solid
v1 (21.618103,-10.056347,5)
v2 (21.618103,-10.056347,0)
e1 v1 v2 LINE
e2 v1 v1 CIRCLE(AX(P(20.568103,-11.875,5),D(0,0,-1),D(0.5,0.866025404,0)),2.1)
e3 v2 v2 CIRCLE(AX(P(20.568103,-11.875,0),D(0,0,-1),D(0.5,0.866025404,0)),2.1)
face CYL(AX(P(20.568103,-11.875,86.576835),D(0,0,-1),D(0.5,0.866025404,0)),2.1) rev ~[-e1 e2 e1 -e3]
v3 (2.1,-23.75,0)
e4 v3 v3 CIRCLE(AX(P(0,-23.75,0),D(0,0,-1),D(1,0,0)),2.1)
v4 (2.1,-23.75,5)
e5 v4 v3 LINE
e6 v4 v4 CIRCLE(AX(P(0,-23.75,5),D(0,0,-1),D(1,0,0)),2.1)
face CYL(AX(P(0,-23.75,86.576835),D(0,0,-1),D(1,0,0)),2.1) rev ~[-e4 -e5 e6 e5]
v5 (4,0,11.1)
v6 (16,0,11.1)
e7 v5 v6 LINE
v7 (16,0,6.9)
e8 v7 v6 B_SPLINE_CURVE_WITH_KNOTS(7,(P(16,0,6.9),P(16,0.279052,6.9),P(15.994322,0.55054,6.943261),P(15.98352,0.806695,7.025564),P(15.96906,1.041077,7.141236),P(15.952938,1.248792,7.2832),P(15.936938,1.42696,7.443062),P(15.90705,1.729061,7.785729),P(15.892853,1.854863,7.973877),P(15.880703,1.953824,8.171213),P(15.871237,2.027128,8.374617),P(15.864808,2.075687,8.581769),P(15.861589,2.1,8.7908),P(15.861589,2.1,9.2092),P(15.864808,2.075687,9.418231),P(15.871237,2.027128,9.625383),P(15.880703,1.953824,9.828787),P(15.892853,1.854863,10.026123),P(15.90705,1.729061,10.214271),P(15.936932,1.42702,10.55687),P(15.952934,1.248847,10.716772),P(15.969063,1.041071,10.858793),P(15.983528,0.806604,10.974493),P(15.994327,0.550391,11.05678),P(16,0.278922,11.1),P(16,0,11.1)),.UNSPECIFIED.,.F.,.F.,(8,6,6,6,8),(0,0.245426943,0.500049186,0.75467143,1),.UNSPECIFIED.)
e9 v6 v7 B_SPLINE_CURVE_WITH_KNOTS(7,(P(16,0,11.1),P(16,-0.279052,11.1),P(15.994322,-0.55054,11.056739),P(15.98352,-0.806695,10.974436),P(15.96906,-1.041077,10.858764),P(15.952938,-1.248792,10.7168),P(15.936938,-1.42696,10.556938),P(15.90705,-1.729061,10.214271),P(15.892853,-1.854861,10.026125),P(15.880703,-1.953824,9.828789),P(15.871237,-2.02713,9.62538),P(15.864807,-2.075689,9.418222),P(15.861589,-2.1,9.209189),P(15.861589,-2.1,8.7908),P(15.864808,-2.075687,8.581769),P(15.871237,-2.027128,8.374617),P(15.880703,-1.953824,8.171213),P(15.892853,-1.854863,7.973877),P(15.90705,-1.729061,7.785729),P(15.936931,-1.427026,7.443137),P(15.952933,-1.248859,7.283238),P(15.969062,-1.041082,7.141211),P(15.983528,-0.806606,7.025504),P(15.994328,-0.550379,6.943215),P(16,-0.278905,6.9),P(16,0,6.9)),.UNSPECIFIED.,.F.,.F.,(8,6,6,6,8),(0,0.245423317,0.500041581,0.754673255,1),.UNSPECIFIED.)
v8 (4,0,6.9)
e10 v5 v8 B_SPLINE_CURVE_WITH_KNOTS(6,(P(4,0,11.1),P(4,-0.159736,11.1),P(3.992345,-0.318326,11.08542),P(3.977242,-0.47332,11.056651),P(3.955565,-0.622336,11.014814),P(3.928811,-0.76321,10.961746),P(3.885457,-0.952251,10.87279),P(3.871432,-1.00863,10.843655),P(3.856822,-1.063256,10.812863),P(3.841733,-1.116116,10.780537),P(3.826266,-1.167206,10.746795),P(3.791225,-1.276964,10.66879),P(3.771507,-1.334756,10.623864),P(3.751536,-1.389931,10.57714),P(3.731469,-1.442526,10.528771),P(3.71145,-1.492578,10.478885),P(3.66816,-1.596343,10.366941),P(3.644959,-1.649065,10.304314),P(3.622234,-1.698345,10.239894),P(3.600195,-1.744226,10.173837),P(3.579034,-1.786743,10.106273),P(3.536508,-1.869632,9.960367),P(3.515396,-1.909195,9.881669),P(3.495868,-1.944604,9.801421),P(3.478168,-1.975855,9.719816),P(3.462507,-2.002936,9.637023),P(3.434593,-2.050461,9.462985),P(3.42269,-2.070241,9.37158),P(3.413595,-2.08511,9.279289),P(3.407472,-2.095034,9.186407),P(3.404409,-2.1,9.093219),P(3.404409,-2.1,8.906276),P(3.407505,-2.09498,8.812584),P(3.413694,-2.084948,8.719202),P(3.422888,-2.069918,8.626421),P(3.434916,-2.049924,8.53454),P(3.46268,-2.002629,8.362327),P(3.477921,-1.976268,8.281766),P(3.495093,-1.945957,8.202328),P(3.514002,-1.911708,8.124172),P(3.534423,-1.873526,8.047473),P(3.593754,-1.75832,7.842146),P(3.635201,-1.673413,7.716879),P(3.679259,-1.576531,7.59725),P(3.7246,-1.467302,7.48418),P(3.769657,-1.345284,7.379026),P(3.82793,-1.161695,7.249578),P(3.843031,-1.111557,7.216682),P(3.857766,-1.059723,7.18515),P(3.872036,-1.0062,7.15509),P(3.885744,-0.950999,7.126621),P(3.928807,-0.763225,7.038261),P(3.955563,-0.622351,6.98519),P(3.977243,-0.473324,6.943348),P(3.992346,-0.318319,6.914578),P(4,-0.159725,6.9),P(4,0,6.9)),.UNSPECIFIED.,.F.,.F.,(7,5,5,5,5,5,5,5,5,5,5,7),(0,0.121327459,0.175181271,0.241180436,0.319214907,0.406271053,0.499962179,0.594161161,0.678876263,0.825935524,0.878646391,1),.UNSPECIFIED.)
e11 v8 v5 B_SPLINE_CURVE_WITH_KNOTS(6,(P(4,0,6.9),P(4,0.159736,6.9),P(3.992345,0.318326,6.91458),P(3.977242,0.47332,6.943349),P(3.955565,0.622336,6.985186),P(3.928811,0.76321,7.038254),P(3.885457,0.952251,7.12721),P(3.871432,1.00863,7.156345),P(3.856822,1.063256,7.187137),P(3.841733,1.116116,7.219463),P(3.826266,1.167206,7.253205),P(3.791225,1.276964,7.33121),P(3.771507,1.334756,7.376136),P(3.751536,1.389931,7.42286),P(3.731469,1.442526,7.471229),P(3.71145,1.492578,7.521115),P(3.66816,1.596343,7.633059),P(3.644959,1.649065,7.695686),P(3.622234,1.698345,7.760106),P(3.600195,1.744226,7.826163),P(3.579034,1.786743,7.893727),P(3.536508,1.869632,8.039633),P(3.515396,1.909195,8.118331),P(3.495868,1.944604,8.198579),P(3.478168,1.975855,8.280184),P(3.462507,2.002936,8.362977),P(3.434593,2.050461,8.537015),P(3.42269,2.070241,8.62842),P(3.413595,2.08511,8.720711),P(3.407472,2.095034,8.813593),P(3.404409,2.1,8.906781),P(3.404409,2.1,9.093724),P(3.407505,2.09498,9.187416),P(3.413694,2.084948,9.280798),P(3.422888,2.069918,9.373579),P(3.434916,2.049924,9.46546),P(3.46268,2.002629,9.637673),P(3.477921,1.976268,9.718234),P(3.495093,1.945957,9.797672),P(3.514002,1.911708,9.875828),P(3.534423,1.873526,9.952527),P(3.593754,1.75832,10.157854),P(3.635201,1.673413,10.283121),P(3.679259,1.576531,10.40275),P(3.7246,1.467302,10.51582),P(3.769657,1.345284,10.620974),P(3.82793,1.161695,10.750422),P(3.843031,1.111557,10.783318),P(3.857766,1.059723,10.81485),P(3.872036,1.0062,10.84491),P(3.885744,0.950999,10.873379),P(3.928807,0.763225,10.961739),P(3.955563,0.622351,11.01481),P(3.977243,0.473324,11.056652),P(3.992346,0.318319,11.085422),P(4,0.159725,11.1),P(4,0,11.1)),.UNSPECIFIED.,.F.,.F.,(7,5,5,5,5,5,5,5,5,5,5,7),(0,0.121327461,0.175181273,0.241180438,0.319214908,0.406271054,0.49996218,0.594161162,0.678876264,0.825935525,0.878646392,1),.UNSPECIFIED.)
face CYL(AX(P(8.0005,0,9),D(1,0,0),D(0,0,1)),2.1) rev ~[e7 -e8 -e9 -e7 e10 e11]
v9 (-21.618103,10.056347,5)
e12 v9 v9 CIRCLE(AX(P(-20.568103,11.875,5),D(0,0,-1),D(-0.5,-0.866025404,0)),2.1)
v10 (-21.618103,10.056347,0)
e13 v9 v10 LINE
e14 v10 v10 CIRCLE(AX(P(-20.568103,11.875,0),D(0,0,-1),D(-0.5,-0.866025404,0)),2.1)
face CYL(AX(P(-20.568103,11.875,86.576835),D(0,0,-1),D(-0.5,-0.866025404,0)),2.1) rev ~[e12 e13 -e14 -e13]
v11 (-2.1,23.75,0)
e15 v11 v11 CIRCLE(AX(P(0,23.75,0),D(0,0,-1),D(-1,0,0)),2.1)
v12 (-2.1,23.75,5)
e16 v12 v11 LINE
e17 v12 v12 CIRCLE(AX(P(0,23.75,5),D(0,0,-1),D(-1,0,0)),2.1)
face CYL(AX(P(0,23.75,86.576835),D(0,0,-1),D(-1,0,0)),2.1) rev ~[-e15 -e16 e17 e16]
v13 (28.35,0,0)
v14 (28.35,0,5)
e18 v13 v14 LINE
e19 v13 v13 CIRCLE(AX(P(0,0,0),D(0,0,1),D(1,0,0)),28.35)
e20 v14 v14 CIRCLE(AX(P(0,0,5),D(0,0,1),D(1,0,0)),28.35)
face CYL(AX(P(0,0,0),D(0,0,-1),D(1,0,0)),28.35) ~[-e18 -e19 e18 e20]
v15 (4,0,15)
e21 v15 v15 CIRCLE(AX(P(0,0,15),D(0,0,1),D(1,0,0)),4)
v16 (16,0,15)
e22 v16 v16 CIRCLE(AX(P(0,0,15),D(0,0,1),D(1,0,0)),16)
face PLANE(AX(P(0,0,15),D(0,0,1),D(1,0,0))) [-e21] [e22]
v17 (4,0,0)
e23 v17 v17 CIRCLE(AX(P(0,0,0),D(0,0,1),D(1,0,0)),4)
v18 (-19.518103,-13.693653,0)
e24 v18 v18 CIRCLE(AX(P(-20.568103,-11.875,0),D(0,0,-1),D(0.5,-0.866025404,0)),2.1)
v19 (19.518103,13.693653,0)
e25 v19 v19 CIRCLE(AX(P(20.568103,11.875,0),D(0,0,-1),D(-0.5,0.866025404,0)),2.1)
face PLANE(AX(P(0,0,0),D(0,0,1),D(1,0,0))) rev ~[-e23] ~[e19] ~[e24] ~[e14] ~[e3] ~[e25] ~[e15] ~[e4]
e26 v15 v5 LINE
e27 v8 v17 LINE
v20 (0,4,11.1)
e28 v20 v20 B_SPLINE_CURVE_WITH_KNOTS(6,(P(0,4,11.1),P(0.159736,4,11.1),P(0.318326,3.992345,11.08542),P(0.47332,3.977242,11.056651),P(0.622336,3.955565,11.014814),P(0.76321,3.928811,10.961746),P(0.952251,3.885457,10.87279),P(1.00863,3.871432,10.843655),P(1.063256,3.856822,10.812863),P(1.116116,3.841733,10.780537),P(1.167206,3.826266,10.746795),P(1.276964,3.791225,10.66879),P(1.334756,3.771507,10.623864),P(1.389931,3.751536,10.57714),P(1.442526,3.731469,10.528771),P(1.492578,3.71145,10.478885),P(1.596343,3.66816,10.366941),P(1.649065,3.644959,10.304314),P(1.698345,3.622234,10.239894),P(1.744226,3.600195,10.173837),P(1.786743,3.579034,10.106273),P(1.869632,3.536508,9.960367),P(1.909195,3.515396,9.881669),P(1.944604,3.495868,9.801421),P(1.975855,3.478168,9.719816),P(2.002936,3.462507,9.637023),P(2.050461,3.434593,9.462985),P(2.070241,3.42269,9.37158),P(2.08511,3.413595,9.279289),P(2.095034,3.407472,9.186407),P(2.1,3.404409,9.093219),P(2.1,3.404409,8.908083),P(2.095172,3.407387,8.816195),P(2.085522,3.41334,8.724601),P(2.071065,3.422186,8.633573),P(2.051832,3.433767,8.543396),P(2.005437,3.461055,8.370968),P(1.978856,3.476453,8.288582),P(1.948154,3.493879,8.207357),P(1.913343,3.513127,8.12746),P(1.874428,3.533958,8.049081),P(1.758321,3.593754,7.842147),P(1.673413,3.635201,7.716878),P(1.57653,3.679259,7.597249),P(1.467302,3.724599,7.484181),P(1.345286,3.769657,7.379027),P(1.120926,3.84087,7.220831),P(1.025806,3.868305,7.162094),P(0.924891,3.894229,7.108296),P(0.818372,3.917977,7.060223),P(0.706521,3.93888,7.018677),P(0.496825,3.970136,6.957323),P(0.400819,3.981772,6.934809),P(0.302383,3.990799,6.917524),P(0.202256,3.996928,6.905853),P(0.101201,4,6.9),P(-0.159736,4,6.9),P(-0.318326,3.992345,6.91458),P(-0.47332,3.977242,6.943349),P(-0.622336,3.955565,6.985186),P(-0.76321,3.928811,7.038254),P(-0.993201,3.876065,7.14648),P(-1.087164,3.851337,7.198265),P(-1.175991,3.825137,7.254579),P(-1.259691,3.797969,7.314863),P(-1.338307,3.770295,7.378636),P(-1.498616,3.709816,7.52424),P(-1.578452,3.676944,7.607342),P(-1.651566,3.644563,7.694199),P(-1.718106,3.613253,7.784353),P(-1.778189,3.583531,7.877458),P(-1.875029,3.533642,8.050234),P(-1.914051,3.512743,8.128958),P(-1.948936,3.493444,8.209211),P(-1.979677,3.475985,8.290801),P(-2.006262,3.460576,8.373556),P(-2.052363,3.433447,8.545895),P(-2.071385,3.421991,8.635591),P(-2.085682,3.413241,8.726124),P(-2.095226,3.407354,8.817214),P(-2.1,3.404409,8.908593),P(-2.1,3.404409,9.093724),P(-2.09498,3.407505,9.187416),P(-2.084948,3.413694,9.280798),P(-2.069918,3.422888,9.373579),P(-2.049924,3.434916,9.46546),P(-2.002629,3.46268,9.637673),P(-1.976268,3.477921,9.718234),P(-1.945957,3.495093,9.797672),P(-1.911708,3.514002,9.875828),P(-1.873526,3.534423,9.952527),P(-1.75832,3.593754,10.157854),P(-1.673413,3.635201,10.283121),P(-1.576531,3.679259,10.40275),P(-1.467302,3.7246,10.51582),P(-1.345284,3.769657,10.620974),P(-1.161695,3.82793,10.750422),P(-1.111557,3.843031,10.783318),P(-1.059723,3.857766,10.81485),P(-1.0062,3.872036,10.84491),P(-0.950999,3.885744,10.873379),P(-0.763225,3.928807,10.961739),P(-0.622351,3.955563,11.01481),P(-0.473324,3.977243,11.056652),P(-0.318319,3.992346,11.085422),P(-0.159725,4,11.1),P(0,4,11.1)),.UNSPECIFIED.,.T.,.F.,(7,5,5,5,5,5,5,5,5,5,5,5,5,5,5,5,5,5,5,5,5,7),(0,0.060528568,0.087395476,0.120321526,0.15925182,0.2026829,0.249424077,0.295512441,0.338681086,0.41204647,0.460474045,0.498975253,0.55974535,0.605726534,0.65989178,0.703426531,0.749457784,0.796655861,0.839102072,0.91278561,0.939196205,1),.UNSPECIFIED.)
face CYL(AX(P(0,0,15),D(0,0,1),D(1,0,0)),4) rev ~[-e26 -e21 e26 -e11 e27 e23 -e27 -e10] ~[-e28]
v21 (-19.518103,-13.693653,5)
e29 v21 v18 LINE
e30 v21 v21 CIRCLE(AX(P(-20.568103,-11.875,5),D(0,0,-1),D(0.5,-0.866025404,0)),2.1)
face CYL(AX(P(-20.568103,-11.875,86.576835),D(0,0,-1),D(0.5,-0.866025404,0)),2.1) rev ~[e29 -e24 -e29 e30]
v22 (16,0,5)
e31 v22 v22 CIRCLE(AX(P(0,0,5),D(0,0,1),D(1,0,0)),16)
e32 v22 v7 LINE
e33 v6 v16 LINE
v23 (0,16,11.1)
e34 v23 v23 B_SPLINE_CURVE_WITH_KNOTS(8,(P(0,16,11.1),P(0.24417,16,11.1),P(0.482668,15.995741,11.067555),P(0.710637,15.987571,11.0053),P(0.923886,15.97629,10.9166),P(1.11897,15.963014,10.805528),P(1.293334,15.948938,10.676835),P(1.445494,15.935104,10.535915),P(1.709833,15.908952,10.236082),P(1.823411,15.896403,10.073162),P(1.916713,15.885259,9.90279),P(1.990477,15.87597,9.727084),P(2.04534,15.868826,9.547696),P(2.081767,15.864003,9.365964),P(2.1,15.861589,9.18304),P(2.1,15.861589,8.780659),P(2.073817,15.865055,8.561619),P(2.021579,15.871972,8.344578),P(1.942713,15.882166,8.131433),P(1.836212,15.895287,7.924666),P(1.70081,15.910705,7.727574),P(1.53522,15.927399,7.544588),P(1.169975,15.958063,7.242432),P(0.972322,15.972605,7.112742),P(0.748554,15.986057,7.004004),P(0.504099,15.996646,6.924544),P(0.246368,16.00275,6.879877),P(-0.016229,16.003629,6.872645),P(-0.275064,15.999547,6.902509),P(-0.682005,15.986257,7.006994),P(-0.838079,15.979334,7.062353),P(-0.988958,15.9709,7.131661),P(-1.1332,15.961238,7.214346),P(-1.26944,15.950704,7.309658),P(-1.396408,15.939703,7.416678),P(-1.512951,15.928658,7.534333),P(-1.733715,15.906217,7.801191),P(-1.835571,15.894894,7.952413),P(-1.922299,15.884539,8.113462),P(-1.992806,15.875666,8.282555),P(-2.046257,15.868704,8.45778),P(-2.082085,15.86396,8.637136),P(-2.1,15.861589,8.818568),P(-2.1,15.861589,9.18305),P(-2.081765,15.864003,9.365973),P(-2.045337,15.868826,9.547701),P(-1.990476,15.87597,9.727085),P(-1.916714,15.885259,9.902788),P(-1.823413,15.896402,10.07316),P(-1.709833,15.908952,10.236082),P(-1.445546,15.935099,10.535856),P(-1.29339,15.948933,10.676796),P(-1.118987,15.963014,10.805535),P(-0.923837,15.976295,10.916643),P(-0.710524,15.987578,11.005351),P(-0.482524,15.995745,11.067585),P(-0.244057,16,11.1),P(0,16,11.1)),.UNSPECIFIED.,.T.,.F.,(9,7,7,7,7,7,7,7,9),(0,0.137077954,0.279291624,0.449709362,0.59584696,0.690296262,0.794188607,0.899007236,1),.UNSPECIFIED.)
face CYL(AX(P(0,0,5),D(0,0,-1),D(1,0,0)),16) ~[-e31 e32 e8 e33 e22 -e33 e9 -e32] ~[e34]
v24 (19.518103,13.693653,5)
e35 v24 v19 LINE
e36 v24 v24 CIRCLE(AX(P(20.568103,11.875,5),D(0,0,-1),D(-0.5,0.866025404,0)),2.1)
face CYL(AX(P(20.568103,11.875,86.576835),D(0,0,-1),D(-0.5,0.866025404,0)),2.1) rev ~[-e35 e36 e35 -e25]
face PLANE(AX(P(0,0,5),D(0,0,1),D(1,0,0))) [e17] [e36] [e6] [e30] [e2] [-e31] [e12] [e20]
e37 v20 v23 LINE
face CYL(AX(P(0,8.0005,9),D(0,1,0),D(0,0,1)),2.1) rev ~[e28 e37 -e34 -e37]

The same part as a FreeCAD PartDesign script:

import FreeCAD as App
import Part
import Sketcher

V = App.Vector
Q = App.Units.Quantity


def add_polygon(sketch, points):
    """Adds a closed chain of lines whose ends are joined by coincident constraints."""
    first, n = sketch.GeometryCount, len(points)
    for a, b in zip(points, points[1:] + points[:1]):
        sketch.addGeometry(Part.LineSegment(App.Vector(*a, 0), App.Vector(*b, 0)), False)
    for i in range(n):
        sketch.addConstraint(Sketcher.Constraint("Coincident", first + i, 2, first + (i + 1) % n, 1))

doc = App.newDocument("Part")
body = doc.addObject("PartDesign::Body", "Body")

# Sketch on XY plane
sketch1 = body.newObject("Sketcher::SketchObject", "Sketch")
sketch1.AttachmentSupport = (doc.getObject("XY_Plane"), [""])
sketch1.MapMode = "FlatFace"
sketch1.addGeometry(Part.Circle(V(0, 0, 0), V(0, 0, 1), 28.35), False)
sketch1.addConstraint([
    Sketcher.Constraint("Coincident", 0, 3, -1, 1),
    Sketcher.Constraint("Diameter", 0, Q("56.7 mm")),
])
pad1 = body.newObject("PartDesign::Pad", "Pad")
pad1.Profile = sketch1
pad1.Length = 5

# Sketch on XY plane
sketch2 = body.newObject("Sketcher::SketchObject", "Sketch001")
sketch2.AttachmentSupport = (doc.getObject("XY_Plane"), [""])
sketch2.MapMode = "FlatFace"
sketch2.AttachmentOffset = App.Placement(V(0, 0, 5), App.Rotation())
sketch2.addGeometry(Part.Circle(V(0, 0, 0), V(0, 0, 1), 16), False)
sketch2.addConstraint([
    Sketcher.Constraint("Coincident", 0, 3, -1, 1),
    Sketcher.Constraint("Diameter", 0, Q("32 mm")),
])
pad2 = body.newObject("PartDesign::Pad", "Pad001")
pad2.Profile = sketch2
pad2.Length = 10

# Sketch on XY plane
sketch3 = body.newObject("Sketcher::SketchObject", "Sketch002")
sketch3.AttachmentSupport = (doc.getObject("XY_Plane"), [""])
sketch3.MapMode = "FlatFace"
sketch3.AttachmentOffset = App.Placement(V(0, 0, 15), App.Rotation())
sketch3.addGeometry(Part.Circle(V(0, 0, 0), V(0, 0, 1), 4), False)
sketch3.addConstraint([
    Sketcher.Constraint("Coincident", 0, 3, -1, 1),
    Sketcher.Constraint("Diameter", 0, Q("8 mm")),
])
pocket1 = body.newObject("PartDesign::Pocket", "Pocket")
pocket1.Profile = sketch3
pocket1.Type = "ThroughAll"

# Sketch on XY plane
sketch4 = body.newObject("Sketcher::SketchObject", "Sketch003")
sketch4.AttachmentSupport = (doc.getObject("XY_Plane"), [""])
sketch4.MapMode = "FlatFace"
sketch4.AttachmentOffset = App.Placement(V(0, 0, 5), App.Rotation())
sketch4.addGeometry(Part.Circle(V(0, 23.75, 0), V(0, 0, 1), 2.1), False)
sketch4.addConstraint([
    Sketcher.Constraint("PointOnObject", 0, 3, -2),
    Sketcher.Constraint("Diameter", 0, Q("4.2 mm")),
    Sketcher.Constraint("DistanceY", -1, 1, 0, 3, Q("23.75 mm")),
])
doc.recompute()
hole = body.newObject("PartDesign::Hole", "Hole")
hole.Profile = sketch4
hole.ThreadType = "None"
hole.Diameter = 4.2
hole.DepthType = "ThroughAll"
doc.recompute()

polarpattern = body.newObject("PartDesign::PolarPattern", "PolarPattern")
polarpattern.Originals = [hole]
polarpattern.Axis = (doc.getObject("Z_Axis"), [""])
polarpattern.Angle = 360
polarpattern.Occurrences = 6
body.Tip = polarpattern

# Sketch on XZ plane
sketch5 = body.newObject("Sketcher::SketchObject", "Sketch004")
sketch5.AttachmentSupport = (doc.getObject("XZ_Plane"), [""])
sketch5.MapMode = "FlatFace"
add_polygon(sketch5, [(16.001, 9), (0, 9), (0, 11.1), (16.001, 11.1)])  # lines 0-3
sketch5.addGeometry(Part.LineSegment(V(0, 9, 0), V(16.001, 9, 0)), True)  # axis
sketch5.addConstraint([
    Sketcher.Constraint("Horizontal", 0),
    Sketcher.Constraint("Vertical", 1),
    Sketcher.Constraint("Horizontal", 2),
    Sketcher.Constraint("Vertical", 3),
    Sketcher.Constraint("Horizontal", 4),
    Sketcher.Constraint("Coincident", 4, 1, 0, 2),
    Sketcher.Constraint("PointOnObject", 0, 2, -2),
    Sketcher.Constraint("Vertical", 2, 2, 4, 2),
    Sketcher.Constraint("DistanceY", 1, 1, 1, 2, Q("2.1 mm")),
    Sketcher.Constraint("DistanceY", -1, 1, 0, 2, Q("9 mm")),
    Sketcher.Constraint("DistanceX", 0, 2, 0, 1, Q("16.001 mm")),
])
groove = body.newObject("PartDesign::Groove", "Groove")
groove.Profile = sketch5
groove.ReferenceAxis = (sketch5, ["Axis0"])
groove.Angle = 360
doc.recompute()

polarpattern2 = body.newObject("PartDesign::PolarPattern", "PolarPattern001")
polarpattern2.Originals = [groove]
polarpattern2.Axis = (doc.getObject("Z_Axis"), [""])
polarpattern2.Angle = 90
polarpattern2.Occurrences = 2
body.Tip = polarpattern2

doc.recompute()
